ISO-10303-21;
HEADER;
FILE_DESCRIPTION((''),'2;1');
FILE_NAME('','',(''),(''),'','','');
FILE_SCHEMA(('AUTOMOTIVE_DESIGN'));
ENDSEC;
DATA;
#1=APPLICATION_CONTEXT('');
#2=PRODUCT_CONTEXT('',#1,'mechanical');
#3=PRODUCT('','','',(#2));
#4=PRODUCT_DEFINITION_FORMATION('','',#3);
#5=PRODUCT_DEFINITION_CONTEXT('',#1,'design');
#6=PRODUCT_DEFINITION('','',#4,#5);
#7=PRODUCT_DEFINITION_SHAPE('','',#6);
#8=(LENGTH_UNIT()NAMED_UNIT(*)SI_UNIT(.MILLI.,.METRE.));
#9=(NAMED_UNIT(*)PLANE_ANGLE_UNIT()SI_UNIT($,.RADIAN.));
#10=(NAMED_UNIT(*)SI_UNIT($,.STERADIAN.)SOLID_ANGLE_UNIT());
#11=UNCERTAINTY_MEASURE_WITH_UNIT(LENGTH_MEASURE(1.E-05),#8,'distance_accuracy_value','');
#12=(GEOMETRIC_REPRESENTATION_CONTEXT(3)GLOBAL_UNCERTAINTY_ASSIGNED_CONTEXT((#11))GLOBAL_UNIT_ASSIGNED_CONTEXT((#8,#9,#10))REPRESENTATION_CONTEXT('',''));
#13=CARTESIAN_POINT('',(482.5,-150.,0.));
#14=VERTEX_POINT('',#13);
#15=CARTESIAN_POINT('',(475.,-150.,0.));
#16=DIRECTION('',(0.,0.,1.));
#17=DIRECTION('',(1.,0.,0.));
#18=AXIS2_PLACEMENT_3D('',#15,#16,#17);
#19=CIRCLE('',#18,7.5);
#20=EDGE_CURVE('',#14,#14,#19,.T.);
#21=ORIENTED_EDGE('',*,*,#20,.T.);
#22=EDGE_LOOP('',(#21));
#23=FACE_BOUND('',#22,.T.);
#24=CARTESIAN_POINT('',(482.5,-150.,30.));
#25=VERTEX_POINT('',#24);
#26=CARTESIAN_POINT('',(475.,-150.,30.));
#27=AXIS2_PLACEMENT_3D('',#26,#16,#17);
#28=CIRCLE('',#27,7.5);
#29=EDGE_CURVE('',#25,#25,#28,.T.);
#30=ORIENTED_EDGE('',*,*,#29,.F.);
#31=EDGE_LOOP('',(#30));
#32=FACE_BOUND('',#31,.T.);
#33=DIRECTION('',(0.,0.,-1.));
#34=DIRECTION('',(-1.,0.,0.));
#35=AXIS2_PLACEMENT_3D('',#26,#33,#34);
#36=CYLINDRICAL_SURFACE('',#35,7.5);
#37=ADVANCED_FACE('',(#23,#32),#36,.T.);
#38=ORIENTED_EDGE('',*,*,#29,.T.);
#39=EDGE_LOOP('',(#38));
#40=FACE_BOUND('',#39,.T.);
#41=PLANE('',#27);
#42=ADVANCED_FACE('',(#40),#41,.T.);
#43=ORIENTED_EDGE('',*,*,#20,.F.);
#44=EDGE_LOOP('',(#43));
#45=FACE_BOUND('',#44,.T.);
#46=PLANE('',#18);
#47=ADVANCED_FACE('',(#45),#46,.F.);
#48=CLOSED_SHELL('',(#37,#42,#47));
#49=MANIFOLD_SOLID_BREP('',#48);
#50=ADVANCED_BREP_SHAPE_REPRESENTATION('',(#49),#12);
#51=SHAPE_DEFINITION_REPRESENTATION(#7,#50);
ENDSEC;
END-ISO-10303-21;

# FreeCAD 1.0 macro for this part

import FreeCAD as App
import Part
import Sketcher

V = App.Vector
Q = App.Units.Quantity

doc = App.newDocument("Part")
params = doc.addObject("Spreadsheet::Sheet", "Params")
for row, (alias, value) in enumerate([
    ("sketch1_diameter", "15 mm"),
    ("pad1_length", "30 mm"),
], start=1):
    params.set(f"A{row}", alias)
    params.set(f"B{row}", "=" + value)
    params.setAlias(f"B{row}", alias)

body = doc.addObject("PartDesign::Body", "Body")

# Sketch on XY plane
sketch1 = body.newObject("Sketcher::SketchObject", "Sketch")
sketch1.AttachmentSupport = (doc.getObject("XY_Plane"), [""])
sketch1.MapMode = "FlatFace"
sketch1.addGeometry(Part.Circle(V(475, -150, 0), V(0, 0, 1), 8), False)
sketch1.addConstraint(Sketcher.Constraint("Diameter", 0, Q("15 mm")))
sketch1.addConstraint(Sketcher.Constraint("DistanceX", -1, 1, 0, 3, Q("475 mm")))
sketch1.addConstraint(Sketcher.Constraint("DistanceY", 0, 3, -1, 1, Q("150 mm")))
sketch1.setExpression("Constraints[0]", "Params.sketch1_diameter")
pad1 = body.newObject("PartDesign::Pad", "Pad")
pad1.Profile = sketch1
pad1.setExpression("Length", "Params.pad1_length")

doc.recompute()
